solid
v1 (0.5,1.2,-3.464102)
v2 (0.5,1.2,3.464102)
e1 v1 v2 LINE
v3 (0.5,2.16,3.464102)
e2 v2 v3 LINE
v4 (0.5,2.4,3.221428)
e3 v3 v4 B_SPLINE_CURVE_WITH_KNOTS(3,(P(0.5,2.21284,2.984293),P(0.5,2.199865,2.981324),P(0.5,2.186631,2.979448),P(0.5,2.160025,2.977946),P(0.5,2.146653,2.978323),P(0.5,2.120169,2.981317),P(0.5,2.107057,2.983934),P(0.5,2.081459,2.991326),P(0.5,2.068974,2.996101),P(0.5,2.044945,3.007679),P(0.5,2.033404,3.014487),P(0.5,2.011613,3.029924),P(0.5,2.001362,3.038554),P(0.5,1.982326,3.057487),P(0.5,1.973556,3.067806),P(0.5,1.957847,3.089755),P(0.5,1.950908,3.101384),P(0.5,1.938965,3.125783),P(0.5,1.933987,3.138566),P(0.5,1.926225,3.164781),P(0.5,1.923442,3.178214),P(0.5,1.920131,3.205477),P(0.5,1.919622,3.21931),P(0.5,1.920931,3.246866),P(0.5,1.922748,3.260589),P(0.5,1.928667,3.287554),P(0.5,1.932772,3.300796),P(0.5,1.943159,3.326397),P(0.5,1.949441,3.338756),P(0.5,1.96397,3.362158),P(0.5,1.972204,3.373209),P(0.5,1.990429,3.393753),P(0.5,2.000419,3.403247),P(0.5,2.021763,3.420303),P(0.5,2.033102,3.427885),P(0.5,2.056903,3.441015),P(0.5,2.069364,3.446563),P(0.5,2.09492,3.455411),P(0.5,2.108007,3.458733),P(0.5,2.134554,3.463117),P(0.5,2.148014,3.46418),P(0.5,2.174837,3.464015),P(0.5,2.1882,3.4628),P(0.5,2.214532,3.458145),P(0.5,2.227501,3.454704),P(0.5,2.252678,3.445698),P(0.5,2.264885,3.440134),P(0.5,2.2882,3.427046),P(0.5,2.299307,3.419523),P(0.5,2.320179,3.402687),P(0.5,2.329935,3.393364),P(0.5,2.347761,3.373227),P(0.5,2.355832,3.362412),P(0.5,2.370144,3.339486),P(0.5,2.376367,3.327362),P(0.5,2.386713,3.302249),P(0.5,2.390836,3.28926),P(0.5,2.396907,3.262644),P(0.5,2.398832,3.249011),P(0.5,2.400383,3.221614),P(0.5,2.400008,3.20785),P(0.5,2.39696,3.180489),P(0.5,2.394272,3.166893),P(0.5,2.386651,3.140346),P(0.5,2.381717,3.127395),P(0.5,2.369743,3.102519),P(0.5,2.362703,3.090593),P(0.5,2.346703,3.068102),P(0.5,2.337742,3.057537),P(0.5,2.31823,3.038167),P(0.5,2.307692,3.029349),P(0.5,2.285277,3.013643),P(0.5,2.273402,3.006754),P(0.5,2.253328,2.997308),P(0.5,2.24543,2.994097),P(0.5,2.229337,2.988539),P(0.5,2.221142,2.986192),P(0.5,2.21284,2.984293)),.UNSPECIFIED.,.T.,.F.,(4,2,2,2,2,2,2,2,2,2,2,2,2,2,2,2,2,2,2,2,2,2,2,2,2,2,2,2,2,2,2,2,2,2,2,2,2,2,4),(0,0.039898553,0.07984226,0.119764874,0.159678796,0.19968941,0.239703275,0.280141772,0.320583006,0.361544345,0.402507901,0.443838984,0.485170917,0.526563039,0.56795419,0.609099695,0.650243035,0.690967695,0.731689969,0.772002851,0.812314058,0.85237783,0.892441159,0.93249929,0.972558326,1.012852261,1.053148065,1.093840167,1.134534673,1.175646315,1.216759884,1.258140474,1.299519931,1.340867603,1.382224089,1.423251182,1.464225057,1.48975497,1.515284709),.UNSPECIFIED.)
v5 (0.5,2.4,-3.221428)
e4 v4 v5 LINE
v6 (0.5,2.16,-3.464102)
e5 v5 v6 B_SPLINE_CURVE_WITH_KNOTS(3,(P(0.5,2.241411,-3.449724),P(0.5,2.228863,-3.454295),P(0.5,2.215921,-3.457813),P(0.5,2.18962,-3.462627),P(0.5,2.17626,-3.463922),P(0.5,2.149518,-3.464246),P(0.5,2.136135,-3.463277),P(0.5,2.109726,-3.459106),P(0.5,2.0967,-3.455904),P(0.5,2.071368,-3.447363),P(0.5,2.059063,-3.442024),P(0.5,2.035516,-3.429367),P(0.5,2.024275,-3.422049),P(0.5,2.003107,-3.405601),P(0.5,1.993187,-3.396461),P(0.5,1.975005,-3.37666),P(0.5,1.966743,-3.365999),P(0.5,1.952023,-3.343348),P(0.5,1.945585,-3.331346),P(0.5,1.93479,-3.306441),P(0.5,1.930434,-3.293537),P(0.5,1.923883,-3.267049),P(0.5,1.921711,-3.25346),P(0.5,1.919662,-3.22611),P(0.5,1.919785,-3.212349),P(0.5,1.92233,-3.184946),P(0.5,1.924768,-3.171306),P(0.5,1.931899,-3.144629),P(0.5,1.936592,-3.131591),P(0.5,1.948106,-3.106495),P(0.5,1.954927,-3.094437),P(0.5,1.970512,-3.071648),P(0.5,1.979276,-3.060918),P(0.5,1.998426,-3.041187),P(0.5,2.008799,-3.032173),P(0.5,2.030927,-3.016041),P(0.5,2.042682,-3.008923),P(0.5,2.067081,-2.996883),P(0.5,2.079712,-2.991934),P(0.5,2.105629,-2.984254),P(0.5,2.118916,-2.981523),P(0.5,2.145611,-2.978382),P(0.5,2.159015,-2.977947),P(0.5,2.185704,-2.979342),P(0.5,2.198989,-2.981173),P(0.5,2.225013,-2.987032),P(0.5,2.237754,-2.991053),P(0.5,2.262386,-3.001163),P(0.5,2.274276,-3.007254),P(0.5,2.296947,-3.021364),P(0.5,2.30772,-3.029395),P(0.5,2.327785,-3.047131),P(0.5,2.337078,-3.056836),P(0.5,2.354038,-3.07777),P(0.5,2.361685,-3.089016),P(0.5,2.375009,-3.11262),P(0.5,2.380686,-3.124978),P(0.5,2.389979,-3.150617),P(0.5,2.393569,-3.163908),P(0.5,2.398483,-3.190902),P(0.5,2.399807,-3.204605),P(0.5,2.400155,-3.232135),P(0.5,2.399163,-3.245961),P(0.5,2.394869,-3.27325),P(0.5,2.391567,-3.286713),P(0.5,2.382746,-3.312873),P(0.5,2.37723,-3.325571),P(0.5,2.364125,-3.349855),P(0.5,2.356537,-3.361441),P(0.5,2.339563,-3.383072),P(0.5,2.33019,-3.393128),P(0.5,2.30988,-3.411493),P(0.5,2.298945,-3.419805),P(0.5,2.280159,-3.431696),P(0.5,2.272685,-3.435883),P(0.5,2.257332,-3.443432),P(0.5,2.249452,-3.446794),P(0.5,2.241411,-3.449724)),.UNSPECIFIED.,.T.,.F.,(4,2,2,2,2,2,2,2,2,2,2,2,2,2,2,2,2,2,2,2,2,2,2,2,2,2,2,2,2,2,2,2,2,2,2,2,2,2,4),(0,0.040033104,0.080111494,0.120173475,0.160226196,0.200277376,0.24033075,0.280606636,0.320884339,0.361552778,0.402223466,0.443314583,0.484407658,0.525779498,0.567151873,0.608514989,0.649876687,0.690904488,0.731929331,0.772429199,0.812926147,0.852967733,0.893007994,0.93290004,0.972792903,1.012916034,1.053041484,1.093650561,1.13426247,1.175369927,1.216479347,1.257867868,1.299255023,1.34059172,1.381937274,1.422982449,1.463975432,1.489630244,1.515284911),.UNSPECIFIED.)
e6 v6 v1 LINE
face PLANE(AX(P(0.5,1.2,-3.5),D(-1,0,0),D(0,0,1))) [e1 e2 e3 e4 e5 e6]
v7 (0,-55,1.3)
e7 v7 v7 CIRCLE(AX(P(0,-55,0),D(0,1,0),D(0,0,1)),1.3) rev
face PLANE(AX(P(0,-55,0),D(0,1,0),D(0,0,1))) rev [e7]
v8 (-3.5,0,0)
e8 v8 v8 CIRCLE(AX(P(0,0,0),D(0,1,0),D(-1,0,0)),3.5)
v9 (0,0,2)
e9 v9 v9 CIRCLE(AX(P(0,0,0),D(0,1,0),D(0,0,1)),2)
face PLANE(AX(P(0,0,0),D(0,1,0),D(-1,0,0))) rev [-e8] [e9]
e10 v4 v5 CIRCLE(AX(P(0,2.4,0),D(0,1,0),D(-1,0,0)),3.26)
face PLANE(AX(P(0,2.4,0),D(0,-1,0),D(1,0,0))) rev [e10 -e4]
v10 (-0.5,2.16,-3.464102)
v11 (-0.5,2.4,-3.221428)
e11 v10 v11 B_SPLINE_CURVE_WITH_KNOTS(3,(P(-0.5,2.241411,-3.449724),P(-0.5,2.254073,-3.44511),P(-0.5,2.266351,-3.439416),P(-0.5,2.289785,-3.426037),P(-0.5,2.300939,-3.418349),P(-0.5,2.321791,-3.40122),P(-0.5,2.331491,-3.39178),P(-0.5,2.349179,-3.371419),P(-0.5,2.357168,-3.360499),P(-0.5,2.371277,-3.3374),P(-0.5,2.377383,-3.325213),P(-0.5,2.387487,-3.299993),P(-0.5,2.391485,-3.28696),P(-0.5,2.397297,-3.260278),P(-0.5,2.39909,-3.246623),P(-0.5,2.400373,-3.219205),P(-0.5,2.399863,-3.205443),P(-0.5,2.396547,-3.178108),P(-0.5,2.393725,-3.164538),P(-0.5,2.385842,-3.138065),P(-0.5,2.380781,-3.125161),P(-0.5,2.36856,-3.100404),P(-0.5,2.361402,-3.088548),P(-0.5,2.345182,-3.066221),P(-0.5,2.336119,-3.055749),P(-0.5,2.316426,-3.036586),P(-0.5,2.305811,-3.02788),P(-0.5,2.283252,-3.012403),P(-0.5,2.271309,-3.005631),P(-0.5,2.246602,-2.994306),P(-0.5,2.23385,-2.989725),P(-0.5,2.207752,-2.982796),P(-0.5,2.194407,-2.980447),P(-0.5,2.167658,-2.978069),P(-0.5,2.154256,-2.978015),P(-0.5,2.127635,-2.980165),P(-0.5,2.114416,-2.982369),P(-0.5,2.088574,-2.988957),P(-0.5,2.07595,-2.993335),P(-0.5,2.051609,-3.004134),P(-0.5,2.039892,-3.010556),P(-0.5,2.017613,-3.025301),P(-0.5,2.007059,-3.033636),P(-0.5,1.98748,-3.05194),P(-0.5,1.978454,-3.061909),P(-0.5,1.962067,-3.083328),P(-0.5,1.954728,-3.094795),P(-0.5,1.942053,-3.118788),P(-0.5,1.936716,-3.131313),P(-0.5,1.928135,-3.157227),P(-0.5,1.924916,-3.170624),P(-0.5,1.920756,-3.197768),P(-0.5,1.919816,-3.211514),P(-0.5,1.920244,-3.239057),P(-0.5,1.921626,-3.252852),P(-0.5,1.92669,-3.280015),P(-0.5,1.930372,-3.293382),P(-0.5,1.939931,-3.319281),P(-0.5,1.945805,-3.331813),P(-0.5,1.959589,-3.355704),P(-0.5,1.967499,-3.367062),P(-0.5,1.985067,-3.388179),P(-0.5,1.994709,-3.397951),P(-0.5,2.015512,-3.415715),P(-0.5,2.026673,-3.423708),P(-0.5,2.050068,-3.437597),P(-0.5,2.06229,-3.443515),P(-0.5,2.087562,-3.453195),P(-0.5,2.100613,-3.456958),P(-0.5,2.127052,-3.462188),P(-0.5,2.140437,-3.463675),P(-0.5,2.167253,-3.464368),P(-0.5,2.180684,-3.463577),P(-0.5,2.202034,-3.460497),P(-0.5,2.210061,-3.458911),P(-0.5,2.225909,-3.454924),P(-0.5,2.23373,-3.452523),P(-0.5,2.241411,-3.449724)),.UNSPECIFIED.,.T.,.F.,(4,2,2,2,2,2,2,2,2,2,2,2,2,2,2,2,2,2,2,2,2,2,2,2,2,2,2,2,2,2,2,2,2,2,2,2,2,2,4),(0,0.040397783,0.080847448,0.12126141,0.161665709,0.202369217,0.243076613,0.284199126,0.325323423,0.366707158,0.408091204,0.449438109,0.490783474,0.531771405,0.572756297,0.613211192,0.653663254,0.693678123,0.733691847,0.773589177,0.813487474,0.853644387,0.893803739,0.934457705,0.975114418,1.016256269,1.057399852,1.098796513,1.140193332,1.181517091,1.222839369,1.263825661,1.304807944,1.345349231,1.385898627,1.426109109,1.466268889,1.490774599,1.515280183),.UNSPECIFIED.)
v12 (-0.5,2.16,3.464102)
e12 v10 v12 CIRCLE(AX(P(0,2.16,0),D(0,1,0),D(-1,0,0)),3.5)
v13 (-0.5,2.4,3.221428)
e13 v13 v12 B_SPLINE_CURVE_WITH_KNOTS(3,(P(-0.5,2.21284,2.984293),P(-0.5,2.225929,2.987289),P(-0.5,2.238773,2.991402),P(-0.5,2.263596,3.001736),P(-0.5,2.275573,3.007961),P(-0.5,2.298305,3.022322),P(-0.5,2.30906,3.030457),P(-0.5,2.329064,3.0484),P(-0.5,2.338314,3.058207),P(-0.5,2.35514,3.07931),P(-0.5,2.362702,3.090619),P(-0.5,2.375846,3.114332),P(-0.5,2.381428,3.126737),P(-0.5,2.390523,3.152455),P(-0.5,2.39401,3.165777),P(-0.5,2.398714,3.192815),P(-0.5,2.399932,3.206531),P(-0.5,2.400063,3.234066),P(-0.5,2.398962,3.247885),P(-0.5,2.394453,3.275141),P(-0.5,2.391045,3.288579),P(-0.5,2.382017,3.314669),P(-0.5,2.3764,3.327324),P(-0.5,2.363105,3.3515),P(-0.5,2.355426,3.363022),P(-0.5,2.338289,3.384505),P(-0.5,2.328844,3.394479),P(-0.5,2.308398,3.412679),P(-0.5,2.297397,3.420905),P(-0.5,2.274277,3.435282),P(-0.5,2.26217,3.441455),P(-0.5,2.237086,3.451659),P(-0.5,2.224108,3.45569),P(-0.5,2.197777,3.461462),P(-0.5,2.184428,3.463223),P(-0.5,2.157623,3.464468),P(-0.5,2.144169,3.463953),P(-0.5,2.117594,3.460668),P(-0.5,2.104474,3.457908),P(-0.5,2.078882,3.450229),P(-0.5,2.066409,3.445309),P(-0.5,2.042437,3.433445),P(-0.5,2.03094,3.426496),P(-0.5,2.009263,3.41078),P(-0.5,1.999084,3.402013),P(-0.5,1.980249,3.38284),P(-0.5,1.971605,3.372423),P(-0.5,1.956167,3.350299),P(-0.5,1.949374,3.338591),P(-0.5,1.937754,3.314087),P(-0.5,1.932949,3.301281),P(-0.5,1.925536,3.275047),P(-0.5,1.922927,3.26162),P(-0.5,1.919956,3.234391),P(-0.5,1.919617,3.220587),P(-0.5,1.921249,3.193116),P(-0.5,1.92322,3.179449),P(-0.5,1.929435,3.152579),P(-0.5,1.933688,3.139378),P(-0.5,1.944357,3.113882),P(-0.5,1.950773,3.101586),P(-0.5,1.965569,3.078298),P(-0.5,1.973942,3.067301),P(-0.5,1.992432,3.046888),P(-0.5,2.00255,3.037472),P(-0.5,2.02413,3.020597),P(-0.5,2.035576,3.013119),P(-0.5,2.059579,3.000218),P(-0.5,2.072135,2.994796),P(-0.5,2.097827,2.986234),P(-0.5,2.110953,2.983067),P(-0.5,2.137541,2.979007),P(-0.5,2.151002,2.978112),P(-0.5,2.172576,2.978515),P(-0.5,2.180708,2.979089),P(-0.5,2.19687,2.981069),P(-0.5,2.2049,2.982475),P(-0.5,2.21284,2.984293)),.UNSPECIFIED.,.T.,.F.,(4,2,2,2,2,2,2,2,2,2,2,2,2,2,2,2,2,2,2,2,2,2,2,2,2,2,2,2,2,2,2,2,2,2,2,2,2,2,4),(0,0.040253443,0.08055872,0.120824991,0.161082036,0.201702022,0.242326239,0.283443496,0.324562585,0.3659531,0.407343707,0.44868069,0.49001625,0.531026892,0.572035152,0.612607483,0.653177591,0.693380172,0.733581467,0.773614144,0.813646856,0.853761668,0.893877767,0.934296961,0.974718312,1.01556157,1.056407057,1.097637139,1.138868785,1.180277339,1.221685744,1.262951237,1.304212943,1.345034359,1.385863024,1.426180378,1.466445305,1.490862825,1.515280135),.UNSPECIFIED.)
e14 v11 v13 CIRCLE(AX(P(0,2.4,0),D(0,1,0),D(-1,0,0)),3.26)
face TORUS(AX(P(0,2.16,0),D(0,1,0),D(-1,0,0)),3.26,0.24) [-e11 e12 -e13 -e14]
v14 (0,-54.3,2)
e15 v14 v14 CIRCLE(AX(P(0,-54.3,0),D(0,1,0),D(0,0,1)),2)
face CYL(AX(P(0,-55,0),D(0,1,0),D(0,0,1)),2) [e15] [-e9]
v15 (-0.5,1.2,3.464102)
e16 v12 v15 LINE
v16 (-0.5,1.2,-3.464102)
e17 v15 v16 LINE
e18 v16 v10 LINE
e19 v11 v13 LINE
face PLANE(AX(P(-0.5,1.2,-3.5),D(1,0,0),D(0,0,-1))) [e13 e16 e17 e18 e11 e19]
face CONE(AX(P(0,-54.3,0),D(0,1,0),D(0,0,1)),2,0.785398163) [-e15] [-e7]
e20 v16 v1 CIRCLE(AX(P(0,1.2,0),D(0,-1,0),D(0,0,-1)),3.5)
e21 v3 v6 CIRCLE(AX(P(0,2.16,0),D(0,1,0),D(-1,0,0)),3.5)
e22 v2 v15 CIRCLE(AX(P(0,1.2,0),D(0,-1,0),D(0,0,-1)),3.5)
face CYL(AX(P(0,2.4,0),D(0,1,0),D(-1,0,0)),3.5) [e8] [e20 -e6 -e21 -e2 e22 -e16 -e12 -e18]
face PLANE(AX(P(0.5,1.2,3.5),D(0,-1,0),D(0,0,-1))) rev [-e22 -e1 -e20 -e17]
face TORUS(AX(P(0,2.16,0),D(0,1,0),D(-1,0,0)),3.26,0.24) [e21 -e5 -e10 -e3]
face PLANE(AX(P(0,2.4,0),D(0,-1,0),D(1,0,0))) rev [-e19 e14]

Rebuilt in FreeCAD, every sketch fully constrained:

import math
import FreeCAD as App
import Part
import Sketcher
from FreeCAD import Vector
Q = App.Units.Quantity


def edges_at(feature, points):
    """Names of the edges that pass closest to the given points."""
    edges = feature.Shape.Edges
    near = lambda p: min(range(len(edges)), key=lambda i: edges[i].distToShape(Part.Vertex(*p))[0])
    return sorted({f"Edge{near(p) + 1}" for p in points})

doc = App.newDocument("Part")
body = doc.addObject("PartDesign::Body", "Body")

sketch1 = body.newObject("Sketcher::SketchObject", "Sketch")
sketch1.AttachmentSupport = (doc.getObject("XZ_Plane"), [""])
sketch1.MapMode = "FlatFace"
sketch1.addGeometry(Part.Circle(Vector(0, 0, 0), Vector(0, 0, 1), 2), False)
sketch1.addConstraint([
    Sketcher.Constraint("Coincident", 0, 3, -1, 1),
    Sketcher.Constraint("Diameter", 0, Q("4 mm")),
])
pad1 = body.newObject("PartDesign::Pad", "Pad")
pad1.Profile = sketch1
pad1.Length = 55
doc.recompute()

chamfer = body.newObject("PartDesign::Chamfer", "Chamfer")
chamfer.Base = (pad1, edges_at(pad1, [(0, -55, -2)]))
chamfer.Size = 0.7

sketch2 = body.newObject("Sketcher::SketchObject", "Sketch001")
sketch2.AttachmentSupport = (doc.getObject("XY_Plane"), [""])
sketch2.MapMode = "FlatFace"
sketch2.addGeometry([
    Part.LineSegment(Vector(0, 0, 0), Vector(3.5, 0, 0)),
    Part.LineSegment(Vector(3.5, 0, 0), Vector(3.5, 2.16, 0)),
    Part.ArcOfCircle(Part.Circle(Vector(3.26, 2.16, 0), Vector(0, 0, 1), 0.24), math.radians(0), math.radians(90)),
    Part.LineSegment(Vector(3.26, 2.4, 0), Vector(0, 2.4, 0)),
    Part.LineSegment(Vector(0, 2.4, 0), Vector(0, 0, 0)),
], False)
sketch2.addConstraint([
    Sketcher.Constraint("Coincident", 0, 2, 1, 1),
    Sketcher.Constraint("Tangent", 1, 2, 2, 1),
    Sketcher.Constraint("Tangent", 2, 2, 3, 1),
    Sketcher.Constraint("Coincident", 3, 2, 4, 1),
    Sketcher.Constraint("Coincident", 4, 2, 0, 1),
    Sketcher.Constraint("Horizontal", 0),
    Sketcher.Constraint("Vertical", 1),
    Sketcher.Constraint("Horizontal", 3),
    Sketcher.Constraint("Vertical", 4),
    Sketcher.Constraint("Coincident", 4, 2, -1, 1),
    Sketcher.Constraint("Radius", 2, Q("0.24 mm")),
    Sketcher.Constraint("DistanceX", 0, 1, 0, 2, Q("3.5 mm")),
    Sketcher.Constraint("DistanceY", 4, 2, 4, 1, Q("2.4 mm")),
])
revolution = body.newObject("PartDesign::Revolution", "Revolution")
revolution.Profile = sketch2
revolution.ReferenceAxis = (sketch2, ["V_Axis"])
revolution.Angle = 360

sketch3 = body.newObject("Sketcher::SketchObject", "Sketch002")
sketch3.AttachmentSupport = (doc.getObject("XZ_Plane"), [""])
sketch3.MapMode = "FlatFace"
sketch3.AttachmentOffset = App.Placement(Vector(0, 0, -2.4), App.Rotation())
sketch3.addGeometry([
    Part.LineSegment(Vector(-0.5, 3.5, 0), Vector(-0.5, -3.5, 0)),
    Part.LineSegment(Vector(-0.5, -3.5, 0), Vector(0.5, -3.5, 0)),
    Part.LineSegment(Vector(0.5, -3.5, 0), Vector(0.5, 3.5, 0)),
    Part.LineSegment(Vector(0.5, 3.5, 0), Vector(-0.5, 3.5, 0)),
], False)
sketch3.addConstraint([
    Sketcher.Constraint("Coincident", 0, 2, 1, 1),
    Sketcher.Constraint("Coincident", 1, 2, 2, 1),
    Sketcher.Constraint("Coincident", 2, 2, 3, 1),
    Sketcher.Constraint("Coincident", 3, 2, 0, 1),
    Sketcher.Constraint("Vertical", 0),
    Sketcher.Constraint("Horizontal", 1),
    Sketcher.Constraint("Vertical", 2),
    Sketcher.Constraint("Horizontal", 3),
    Sketcher.Constraint("Symmetric", 0, 2, 2, 2, -1, 1),
    Sketcher.Constraint("DistanceX", 1, 1, 1, 2, Q("1 mm")),
    Sketcher.Constraint("DistanceY", 0, 2, 0, 1, Q("7 mm")),
])
pocket1 = body.newObject("PartDesign::Pocket", "Pocket")
pocket1.Profile = sketch3
pocket1.Length = 1.2
pocket1.Reversed = True

doc.recompute()
